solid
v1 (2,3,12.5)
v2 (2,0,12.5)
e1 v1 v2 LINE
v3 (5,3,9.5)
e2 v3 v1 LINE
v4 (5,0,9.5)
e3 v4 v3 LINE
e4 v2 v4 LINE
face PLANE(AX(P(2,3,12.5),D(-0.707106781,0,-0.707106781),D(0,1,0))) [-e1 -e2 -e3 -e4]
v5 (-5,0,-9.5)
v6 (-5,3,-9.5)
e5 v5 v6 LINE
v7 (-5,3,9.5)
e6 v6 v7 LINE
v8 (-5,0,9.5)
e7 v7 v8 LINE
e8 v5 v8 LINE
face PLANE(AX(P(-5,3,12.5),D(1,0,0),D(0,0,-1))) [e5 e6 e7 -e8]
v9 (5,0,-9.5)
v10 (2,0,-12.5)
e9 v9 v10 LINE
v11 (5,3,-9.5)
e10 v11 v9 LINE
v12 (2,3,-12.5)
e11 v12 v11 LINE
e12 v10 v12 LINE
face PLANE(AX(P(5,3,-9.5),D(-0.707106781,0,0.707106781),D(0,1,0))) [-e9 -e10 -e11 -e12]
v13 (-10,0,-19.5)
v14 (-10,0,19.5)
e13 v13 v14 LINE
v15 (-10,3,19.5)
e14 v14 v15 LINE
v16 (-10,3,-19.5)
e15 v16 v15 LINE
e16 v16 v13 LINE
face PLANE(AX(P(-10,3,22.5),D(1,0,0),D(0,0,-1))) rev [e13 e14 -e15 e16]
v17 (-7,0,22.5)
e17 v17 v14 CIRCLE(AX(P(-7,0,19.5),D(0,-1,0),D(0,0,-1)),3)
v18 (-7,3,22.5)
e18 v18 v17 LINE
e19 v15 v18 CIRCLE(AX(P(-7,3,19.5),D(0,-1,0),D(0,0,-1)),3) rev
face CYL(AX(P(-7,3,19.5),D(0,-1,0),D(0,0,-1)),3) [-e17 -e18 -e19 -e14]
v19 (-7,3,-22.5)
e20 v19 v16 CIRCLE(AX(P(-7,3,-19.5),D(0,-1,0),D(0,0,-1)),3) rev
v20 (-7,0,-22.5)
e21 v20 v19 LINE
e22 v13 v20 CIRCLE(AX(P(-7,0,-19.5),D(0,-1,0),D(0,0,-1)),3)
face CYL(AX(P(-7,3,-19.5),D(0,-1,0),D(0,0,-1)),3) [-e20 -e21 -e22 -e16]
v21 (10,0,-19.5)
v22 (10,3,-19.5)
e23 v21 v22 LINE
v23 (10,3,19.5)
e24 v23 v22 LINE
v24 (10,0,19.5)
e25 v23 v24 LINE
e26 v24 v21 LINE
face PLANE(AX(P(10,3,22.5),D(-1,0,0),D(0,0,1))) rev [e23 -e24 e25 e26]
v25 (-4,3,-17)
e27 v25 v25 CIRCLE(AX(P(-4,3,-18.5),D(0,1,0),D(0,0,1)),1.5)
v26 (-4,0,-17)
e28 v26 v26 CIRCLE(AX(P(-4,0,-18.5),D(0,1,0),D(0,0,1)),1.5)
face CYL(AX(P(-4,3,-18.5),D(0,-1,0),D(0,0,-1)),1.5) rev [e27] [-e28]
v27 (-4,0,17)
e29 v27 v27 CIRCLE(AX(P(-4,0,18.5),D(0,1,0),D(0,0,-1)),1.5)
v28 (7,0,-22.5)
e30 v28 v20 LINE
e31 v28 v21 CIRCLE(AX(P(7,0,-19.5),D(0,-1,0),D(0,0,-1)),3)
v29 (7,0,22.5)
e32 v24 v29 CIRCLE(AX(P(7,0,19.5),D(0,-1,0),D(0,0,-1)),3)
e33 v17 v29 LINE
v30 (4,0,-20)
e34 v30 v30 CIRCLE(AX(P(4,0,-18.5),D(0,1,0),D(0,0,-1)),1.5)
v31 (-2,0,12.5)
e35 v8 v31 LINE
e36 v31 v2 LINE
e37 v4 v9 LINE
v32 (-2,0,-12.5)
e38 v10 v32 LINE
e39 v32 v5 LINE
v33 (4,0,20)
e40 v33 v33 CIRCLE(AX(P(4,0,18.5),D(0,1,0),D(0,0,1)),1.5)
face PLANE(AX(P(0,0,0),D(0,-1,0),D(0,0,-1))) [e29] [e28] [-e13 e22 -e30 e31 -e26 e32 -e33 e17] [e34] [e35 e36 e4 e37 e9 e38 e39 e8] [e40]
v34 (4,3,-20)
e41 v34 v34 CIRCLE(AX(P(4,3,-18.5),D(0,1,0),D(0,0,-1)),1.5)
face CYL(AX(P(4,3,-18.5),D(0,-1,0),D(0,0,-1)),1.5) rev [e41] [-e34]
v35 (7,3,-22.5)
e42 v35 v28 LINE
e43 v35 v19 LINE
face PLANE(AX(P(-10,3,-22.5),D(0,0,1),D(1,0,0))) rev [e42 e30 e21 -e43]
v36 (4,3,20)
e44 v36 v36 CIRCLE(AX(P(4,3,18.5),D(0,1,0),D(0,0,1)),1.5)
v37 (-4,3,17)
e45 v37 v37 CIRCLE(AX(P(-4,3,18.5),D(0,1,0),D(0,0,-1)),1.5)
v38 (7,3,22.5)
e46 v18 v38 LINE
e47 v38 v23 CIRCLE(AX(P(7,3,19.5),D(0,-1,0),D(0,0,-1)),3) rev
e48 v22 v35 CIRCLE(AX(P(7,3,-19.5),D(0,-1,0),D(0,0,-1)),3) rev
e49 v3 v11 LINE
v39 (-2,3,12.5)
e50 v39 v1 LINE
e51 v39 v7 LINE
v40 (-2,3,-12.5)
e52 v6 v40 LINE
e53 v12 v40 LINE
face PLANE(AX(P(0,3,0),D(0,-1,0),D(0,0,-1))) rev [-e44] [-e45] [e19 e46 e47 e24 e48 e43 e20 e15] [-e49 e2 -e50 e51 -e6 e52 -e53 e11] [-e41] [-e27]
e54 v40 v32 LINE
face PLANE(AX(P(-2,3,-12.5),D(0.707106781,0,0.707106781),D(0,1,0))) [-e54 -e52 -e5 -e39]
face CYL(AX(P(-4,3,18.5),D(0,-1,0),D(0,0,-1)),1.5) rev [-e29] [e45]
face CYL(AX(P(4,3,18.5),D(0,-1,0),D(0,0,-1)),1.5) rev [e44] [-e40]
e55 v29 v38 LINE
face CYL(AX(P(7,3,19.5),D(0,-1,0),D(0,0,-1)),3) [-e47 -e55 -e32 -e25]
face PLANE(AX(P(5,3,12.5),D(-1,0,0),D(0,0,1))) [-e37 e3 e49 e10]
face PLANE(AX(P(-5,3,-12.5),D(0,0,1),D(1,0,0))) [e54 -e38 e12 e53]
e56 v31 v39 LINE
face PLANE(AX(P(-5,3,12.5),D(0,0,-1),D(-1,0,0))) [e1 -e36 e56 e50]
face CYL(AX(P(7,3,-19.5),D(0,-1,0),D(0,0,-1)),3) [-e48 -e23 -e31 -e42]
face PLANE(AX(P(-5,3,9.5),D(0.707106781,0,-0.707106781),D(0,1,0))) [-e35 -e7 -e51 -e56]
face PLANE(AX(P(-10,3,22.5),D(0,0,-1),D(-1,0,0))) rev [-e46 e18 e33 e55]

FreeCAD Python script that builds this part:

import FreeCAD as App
import Part
import Sketcher
from FreeCAD import Vector


def edges_at(feature, points):
    """Names of the edges that pass closest to the given points."""
    edges = feature.Shape.Edges
    near = lambda p: min(range(len(edges)), key=lambda i: edges[i].distToShape(Part.Vertex(*p))[0])
    return sorted({f"Edge{near(p) + 1}" for p in points})

doc = App.newDocument("Part")
params = doc.addObject("Spreadsheet::Sheet", "Params")
for row, (alias, value) in enumerate([
    ("sketch1_diameter", "3 mm"),
    ("sketch1_width", "20 mm"),
    ("sketch1_width2", "10 mm"),
    ("sketch1_height", "45 mm"),
    ("sketch1_height2", "25 mm"),
    ("pad1_length", "3 mm"),
    ("chamfer_size", "3 mm"),
    ("fillet_radius", "3 mm"),
], start=1):
    params.set(f"A{row}", alias)
    params.set(f"B{row}", "=" + value)
    params.setAlias(f"B{row}", alias)

body = doc.addObject("PartDesign::Body", "Body")

# Sketch on XZ plane
sketch1 = body.newObject("Sketcher::SketchObject", "Sketch")
sketch1.AttachmentSupport = (doc.getObject("XZ_Plane"), [""])
sketch1.MapMode = "FlatFace"
sketch1.addGeometry(Part.LineSegment(Vector(-10, -22.5, 0), Vector(-10, 22.5, 0)), False)
sketch1.addGeometry(Part.LineSegment(Vector(-10, 22.5, 0), Vector(10, 22.5, 0)), False)
sketch1.addGeometry(Part.LineSegment(Vector(10, 22.5, 0), Vector(10, -22.5, 0)), False)
sketch1.addGeometry(Part.LineSegment(Vector(10, -22.5, 0), Vector(-10, -22.5, 0)), False)
sketch1.addGeometry(Part.Circle(Vector(-4, 18.5, 0), Vector(0, 0, 1), 1.5), False)
sketch1.addGeometry(Part.Circle(Vector(4, 18.5, 0), Vector(0, 0, 1), 1.5), False)
sketch1.addGeometry(Part.Circle(Vector(-4, -18.5, 0), Vector(0, 0, 1), 1.5), False)
sketch1.addGeometry(Part.LineSegment(Vector(5, 12.5, 0), Vector(-5, 12.5, 0)), False)
sketch1.addGeometry(Part.LineSegment(Vector(-5, 12.5, 0), Vector(-5, -12.5, 0)), False)
sketch1.addGeometry(Part.LineSegment(Vector(-5, -12.5, 0), Vector(5, -12.5, 0)), False)
sketch1.addGeometry(Part.LineSegment(Vector(5, -12.5, 0), Vector(5, 12.5, 0)), False)
sketch1.addGeometry(Part.Circle(Vector(4, -18.5, 0), Vector(0, 0, 1), 1.5), False)
sketch1.addConstraint(Sketcher.Constraint("Coincident", 0, 2, 1, 1))
sketch1.addConstraint(Sketcher.Constraint("Coincident", 1, 2, 2, 1))
sketch1.addConstraint(Sketcher.Constraint("Coincident", 2, 2, 3, 1))
sketch1.addConstraint(Sketcher.Constraint("Coincident", 3, 2, 0, 1))
sketch1.addConstraint(Sketcher.Constraint("Coincident", 7, 2, 8, 1))
sketch1.addConstraint(Sketcher.Constraint("Coincident", 8, 2, 9, 1))
sketch1.addConstraint(Sketcher.Constraint("Coincident", 9, 2, 10, 1))
sketch1.addConstraint(Sketcher.Constraint("Coincident", 10, 2, 7, 1))
sketch1.addConstraint(Sketcher.Constraint("Vertical", 0))
sketch1.addConstraint(Sketcher.Constraint("Horizontal", 1))
sketch1.addConstraint(Sketcher.Constraint("Vertical", 2))
sketch1.addConstraint(Sketcher.Constraint("Horizontal", 3))
sketch1.addConstraint(Sketcher.Constraint("Horizontal", 7))
sketch1.addConstraint(Sketcher.Constraint("Vertical", 8))
sketch1.addConstraint(Sketcher.Constraint("Horizontal", 9))
sketch1.addConstraint(Sketcher.Constraint("Vertical", 10))
sketch1.addConstraint(Sketcher.Constraint("Equal", 4, 5))
sketch1.addConstraint(Sketcher.Constraint("Equal", 5, 6))
sketch1.addConstraint(Sketcher.Constraint("Equal", 6, 11))
sketch1.addConstraint(Sketcher.Constraint("Symmetric", 5, 3, 6, 3, -1, 1))
sketch1.addConstraint(Sketcher.Constraint("Symmetric", 4, 3, 11, 3, -1, 1))
sketch1.addConstraint(Sketcher.Constraint("Symmetric", 0, 2, 2, 2, -1, 1))
sketch1.addConstraint(Sketcher.Constraint("Symmetric", 7, 2, 9, 2, -1, 1))
sketch1.addConstraint(Sketcher.Constraint("Symmetric", 4, 3, 5, 3, -2))
sketch1.addConstraint(Sketcher.Constraint("Diameter", 4, 3.0))
sketch1.addConstraint(Sketcher.Constraint("DistanceX", 1, 1, 1, 2, 20.0))
sketch1.addConstraint(Sketcher.Constraint("DistanceX", 7, 2, 7, 1, 10.0))
sketch1.addConstraint(Sketcher.Constraint("DistanceY", 0, 1, 0, 2, 45.0))
sketch1.addConstraint(Sketcher.Constraint("DistanceY", 8, 2, 8, 1, 25.0))
sketch1.addConstraint(Sketcher.Constraint("DistanceX", 4, 3, -1, 1, 4.0))
sketch1.addConstraint(Sketcher.Constraint("DistanceY", 6, 3, 4, 3, 37.0))
sketch1.setExpression("Constraints[24]", "Params.sketch1_diameter")
sketch1.setExpression("Constraints[25]", "Params.sketch1_width")
sketch1.setExpression("Constraints[26]", "Params.sketch1_width2")
sketch1.setExpression("Constraints[27]", "Params.sketch1_height")
sketch1.setExpression("Constraints[28]", "Params.sketch1_height2")
pad1 = body.newObject("PartDesign::Pad", "Pad")
pad1.Profile = sketch1
pad1.setExpression("Length", "Params.pad1_length")
pad1.Reversed = True
doc.recompute()

chamfer = body.newObject("PartDesign::Chamfer", "Chamfer")
chamfer.Base = (pad1, edges_at(pad1, [
    (5, 1.5, 12.5),
    (5, 1.5, -12.5),
    (-5, 1.5, -12.5),
    (-5, 1.5, 12.5),
]))
chamfer.setExpression("Size", "Params.chamfer_size")
doc.recompute()

fillet = body.newObject("PartDesign::Fillet", "Fillet")
fillet.Base = (chamfer, edges_at(chamfer, [
    (10, 1.5, 22.5),
    (-10, 1.5, 22.5),
    (-10, 1.5, -22.5),
    (10, 1.5, -22.5),
]))
fillet.setExpression("Radius", "Params.fillet_radius")

doc.recompute()
